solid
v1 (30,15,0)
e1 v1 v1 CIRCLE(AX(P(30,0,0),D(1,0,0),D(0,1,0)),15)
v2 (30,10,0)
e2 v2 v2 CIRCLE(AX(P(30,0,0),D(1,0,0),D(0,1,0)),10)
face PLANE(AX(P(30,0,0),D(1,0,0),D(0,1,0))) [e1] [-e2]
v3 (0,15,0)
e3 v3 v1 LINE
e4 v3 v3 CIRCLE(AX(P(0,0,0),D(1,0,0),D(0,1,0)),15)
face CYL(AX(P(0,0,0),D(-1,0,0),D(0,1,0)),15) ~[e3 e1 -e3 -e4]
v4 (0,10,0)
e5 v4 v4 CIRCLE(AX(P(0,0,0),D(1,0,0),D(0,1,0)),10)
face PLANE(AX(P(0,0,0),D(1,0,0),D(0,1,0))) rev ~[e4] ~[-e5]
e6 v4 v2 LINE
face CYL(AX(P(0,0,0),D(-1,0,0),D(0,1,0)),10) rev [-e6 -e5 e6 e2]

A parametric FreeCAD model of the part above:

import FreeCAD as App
import Part
import Sketcher

V = App.Vector
Q = App.Units.Quantity

doc = App.newDocument("Part")
params = doc.addObject("Spreadsheet::Sheet", "Params")
for row, (alias, value) in enumerate([
    ("sketch1_diameter", "30 mm"),
    ("sketch1_diameter2", "20 mm"),
    ("pad1_length", "30 mm"),
], start=1):
    params.set(f"A{row}", alias)
    params.set(f"B{row}", "=" + value)
    params.setAlias(f"B{row}", alias)

body = doc.addObject("PartDesign::Body", "Body")

# Sketch on YZ plane
sketch1 = body.newObject("Sketcher::SketchObject", "Sketch")
sketch1.AttachmentSupport = (doc.getObject("YZ_Plane"), [""])
sketch1.MapMode = "FlatFace"
sketch1.addGeometry([
    Part.Circle(V(0, 0, 0), V(0, 0, 1), 15),
    Part.Circle(V(0, 0, 0), V(0, 0, 1), 10),
], False)
sketch1.addConstraint([
    Sketcher.Constraint("Coincident", 0, 3, -1, 1),
    Sketcher.Constraint("Coincident", 1, 3, -1, 1),
    Sketcher.Constraint("Diameter", 0, Q("30 mm")),
    Sketcher.Constraint("Diameter", 1, Q("20 mm")),
])
sketch1.setExpression("Constraints[2]", "Params.sketch1_diameter")
sketch1.setExpression("Constraints[3]", "Params.sketch1_diameter2")
pad1 = body.newObject("PartDesign::Pad", "Pad")
pad1.Profile = sketch1
pad1.setExpression("Length", "Params.pad1_length")

doc.recompute()
